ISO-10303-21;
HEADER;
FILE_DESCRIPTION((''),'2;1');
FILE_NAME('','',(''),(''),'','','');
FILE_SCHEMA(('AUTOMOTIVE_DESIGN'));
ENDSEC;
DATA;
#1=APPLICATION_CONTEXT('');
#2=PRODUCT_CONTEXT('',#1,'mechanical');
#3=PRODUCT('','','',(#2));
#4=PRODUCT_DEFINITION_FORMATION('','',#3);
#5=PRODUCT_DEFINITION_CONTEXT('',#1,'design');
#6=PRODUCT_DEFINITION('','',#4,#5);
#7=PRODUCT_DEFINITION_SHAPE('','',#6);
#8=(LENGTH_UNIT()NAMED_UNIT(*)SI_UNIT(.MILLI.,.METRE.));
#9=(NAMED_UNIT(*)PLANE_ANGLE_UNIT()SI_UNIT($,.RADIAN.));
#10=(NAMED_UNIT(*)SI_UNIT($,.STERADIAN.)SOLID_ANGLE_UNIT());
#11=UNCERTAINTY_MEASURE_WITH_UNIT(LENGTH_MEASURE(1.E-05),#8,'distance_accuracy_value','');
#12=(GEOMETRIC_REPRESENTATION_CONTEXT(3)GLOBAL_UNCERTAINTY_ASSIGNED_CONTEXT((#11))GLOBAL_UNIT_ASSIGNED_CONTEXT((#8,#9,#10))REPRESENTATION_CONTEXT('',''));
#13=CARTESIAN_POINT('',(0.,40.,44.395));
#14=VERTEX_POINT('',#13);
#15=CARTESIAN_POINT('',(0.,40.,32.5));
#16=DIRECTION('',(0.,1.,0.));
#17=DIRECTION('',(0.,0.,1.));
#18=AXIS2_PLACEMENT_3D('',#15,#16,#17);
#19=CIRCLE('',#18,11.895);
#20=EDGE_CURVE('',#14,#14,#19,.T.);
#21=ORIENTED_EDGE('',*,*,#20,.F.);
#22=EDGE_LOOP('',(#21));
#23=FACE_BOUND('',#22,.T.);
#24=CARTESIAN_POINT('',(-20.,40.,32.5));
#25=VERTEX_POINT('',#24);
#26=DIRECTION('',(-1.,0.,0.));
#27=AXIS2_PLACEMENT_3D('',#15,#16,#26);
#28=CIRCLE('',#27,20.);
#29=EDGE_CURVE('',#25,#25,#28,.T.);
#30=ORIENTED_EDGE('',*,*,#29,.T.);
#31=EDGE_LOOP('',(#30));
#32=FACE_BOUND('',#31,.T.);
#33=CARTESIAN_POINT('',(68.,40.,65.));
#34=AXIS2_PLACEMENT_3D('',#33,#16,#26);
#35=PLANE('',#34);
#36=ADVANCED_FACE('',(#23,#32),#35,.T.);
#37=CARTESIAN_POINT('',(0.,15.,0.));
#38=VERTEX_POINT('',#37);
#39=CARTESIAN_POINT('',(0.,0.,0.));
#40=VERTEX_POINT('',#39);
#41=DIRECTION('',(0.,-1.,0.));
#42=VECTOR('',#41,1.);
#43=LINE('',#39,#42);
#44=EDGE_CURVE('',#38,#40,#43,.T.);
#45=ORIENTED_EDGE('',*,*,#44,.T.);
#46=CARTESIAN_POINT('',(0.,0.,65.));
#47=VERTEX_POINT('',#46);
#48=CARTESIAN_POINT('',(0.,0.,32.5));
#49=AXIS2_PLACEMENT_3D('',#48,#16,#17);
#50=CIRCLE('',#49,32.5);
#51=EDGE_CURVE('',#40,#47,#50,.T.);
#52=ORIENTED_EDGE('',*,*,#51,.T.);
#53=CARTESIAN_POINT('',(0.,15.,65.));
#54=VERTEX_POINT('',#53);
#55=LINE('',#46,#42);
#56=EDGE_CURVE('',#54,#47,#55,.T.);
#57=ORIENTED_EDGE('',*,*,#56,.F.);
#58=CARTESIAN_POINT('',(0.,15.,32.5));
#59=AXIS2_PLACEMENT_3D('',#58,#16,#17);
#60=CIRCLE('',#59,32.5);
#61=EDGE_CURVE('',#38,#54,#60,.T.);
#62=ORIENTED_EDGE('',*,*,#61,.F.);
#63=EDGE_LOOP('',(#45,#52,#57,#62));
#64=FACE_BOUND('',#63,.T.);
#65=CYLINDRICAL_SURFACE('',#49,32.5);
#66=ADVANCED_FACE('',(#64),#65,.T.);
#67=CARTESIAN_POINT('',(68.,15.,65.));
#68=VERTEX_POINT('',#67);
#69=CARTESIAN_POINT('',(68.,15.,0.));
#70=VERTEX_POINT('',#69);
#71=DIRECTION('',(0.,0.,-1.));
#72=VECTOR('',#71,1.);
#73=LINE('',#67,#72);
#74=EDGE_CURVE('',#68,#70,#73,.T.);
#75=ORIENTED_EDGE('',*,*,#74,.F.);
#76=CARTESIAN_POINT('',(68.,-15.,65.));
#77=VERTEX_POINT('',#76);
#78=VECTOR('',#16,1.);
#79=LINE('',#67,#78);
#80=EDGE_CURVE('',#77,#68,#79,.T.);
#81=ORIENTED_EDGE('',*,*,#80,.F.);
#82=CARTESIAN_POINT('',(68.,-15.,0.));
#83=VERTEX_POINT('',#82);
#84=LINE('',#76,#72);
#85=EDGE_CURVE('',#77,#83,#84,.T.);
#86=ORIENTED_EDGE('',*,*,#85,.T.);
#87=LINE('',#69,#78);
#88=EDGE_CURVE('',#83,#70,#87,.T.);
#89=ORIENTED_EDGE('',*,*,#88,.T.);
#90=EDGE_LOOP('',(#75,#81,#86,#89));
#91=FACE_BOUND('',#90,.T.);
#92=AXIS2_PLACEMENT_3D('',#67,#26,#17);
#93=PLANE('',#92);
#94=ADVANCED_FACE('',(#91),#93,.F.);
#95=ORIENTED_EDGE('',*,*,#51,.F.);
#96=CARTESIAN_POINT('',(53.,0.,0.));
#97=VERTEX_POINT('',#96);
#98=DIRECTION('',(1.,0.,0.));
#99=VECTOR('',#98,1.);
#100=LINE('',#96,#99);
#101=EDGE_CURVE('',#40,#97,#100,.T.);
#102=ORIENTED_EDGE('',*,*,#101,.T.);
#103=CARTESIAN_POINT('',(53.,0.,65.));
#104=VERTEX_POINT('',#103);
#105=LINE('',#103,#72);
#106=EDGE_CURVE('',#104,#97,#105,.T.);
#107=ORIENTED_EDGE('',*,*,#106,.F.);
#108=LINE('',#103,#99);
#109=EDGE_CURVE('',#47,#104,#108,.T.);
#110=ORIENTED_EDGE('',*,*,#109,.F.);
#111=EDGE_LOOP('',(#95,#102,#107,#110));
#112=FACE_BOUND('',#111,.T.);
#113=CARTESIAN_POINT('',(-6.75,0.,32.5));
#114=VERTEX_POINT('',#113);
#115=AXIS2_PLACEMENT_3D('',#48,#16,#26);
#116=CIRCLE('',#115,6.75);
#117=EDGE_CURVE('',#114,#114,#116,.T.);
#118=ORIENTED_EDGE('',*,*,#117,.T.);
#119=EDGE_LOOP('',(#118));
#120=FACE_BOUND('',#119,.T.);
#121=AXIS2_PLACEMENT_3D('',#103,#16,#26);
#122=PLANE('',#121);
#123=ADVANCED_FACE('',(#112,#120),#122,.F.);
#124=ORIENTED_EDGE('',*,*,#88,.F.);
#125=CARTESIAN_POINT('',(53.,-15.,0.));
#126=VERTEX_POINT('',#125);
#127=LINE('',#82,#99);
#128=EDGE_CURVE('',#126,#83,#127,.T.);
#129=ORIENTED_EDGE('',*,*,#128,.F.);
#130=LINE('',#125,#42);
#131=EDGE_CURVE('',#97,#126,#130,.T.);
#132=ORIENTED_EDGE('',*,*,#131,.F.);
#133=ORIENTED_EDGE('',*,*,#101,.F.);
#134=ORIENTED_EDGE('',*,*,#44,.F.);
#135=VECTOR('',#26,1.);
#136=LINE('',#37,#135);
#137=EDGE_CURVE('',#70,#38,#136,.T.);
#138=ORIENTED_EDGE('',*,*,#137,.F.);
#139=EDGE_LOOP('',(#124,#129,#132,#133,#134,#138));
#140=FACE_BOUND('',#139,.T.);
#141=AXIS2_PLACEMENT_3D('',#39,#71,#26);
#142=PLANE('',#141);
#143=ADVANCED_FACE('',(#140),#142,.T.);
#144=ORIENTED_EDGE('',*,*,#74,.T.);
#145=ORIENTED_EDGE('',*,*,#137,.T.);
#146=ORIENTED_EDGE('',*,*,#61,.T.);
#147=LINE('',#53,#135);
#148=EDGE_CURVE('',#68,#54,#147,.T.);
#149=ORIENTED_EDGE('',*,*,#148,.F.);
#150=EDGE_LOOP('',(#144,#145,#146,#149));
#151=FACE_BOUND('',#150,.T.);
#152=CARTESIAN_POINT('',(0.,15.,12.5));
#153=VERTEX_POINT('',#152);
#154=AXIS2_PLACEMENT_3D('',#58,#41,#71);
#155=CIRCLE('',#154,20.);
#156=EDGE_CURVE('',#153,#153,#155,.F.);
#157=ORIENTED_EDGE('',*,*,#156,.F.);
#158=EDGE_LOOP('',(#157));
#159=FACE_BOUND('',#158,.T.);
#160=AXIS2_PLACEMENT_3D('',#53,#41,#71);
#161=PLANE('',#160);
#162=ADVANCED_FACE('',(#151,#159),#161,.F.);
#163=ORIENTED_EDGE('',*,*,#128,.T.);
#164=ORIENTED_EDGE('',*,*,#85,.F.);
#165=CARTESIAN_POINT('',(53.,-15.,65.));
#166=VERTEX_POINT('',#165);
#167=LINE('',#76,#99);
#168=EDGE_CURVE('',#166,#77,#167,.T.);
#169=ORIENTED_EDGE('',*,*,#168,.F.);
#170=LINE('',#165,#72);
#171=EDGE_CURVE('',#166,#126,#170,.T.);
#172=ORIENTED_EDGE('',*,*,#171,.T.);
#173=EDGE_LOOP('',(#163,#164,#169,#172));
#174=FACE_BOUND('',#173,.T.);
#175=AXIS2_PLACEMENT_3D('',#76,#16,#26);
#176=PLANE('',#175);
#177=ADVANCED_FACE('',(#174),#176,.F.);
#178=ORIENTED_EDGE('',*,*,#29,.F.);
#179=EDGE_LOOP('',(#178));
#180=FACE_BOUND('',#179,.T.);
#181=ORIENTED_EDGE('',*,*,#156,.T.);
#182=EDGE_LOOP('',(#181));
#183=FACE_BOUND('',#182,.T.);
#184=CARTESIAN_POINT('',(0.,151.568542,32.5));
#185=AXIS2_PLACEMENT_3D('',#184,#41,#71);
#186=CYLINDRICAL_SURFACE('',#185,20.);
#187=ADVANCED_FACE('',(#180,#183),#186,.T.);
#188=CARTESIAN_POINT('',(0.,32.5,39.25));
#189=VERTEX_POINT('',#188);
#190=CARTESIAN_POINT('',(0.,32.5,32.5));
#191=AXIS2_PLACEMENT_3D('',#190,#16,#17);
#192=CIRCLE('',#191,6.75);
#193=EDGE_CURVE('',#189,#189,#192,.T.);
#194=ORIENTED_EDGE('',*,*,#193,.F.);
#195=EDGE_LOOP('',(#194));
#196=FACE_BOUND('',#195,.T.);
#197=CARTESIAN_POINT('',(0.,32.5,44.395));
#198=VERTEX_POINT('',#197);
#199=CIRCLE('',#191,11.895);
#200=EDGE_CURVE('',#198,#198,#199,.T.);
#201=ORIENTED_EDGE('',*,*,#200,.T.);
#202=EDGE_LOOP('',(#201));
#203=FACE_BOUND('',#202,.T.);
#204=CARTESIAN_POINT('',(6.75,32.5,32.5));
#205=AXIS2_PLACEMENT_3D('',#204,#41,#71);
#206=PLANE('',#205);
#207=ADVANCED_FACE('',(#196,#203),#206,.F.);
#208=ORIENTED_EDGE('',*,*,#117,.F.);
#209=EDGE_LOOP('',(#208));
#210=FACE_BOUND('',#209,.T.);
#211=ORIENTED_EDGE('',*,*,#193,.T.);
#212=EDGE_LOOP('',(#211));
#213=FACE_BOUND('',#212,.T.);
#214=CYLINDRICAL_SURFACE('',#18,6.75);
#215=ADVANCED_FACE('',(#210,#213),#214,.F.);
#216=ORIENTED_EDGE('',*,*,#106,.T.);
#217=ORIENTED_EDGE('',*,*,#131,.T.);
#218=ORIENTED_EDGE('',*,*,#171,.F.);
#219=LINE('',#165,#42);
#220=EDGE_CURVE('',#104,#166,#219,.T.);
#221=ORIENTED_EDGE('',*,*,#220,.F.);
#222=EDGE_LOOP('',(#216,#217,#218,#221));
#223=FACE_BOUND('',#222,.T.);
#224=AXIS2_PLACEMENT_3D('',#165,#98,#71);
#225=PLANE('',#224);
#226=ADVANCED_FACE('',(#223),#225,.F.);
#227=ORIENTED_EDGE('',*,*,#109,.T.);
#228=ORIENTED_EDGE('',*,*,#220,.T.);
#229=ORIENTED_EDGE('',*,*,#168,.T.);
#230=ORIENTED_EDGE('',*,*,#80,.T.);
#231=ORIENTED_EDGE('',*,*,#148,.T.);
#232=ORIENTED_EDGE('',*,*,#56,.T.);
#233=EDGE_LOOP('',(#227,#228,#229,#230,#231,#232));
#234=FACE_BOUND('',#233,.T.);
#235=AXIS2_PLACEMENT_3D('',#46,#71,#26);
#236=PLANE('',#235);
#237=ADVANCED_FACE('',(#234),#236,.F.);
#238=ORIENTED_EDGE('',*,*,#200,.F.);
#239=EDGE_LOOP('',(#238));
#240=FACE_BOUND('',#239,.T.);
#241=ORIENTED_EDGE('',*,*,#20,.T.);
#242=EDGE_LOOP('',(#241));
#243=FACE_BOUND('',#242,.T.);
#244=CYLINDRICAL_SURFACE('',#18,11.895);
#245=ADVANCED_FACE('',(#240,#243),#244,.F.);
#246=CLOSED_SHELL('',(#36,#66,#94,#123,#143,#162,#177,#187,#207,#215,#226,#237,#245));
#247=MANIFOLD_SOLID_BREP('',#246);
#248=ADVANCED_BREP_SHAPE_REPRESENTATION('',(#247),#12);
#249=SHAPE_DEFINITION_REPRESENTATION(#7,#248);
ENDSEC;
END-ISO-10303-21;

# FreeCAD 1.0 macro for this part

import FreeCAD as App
import Part
import Sketcher
from FreeCAD import Vector
Q = App.Units.Quantity


def add_polygon(sketch, points):
    """Adds a closed chain of lines whose ends are joined by coincident constraints."""
    first, n = sketch.GeometryCount, len(points)
    for a, b in zip(points, points[1:] + points[:1]):
        sketch.addGeometry(Part.LineSegment(App.Vector(*a, 0), App.Vector(*b, 0)), False)
    for i in range(n):
        sketch.addConstraint(Sketcher.Constraint("Coincident", first + i, 2, first + (i + 1) % n, 1))

doc = App.newDocument("Part")
body = doc.addObject("PartDesign::Body", "Body")

# Sketch on XY plane
sketch1 = doc.addObject("Sketcher::SketchObject", "Sketch")
body.addObject(sketch1)
sketch1.AttachmentSupport = (doc.XY_Plane, [""])
sketch1.MapMode = "FlatFace"
add_polygon(sketch1, [(0, 15), (0, 0), (53, 0), (53, -15), (68, -15), (68, 15)])  # lines 0-5
sketch1.addConstraint(Sketcher.Constraint("Vertical", 0))
sketch1.addConstraint(Sketcher.Constraint("Horizontal", 1))
sketch1.addConstraint(Sketcher.Constraint("Vertical", 2))
sketch1.addConstraint(Sketcher.Constraint("Horizontal", 3))
sketch1.addConstraint(Sketcher.Constraint("Vertical", 4))
sketch1.addConstraint(Sketcher.Constraint("Horizontal", 5))
sketch1.addConstraint(Sketcher.Constraint("Coincident", 0, 2, -1, 1))
sketch1.addConstraint(Sketcher.Constraint("Equal", 3, 0))
sketch1.addConstraint(Sketcher.Constraint("Equal", 0, 2))
sketch1.addConstraint(Sketcher.Constraint("DistanceX", 1, 1, 1, 2, Q("53 mm")))
sketch1.addConstraint(Sketcher.Constraint("DistanceX", 3, 1, 3, 2, Q("15 mm")))
pad1 = doc.addObject("PartDesign::Pad", "Pad")
body.addObject(pad1)
pad1.Profile = sketch1
pad1.Length = 65

# Sketch on XZ plane
sketch2 = doc.addObject("Sketcher::SketchObject", "Sketch001")
body.addObject(sketch2)
sketch2.AttachmentSupport = (doc.XZ_Plane, [""])
sketch2.MapMode = "FlatFace"
sketch2.addGeometry(Part.Circle(Vector(0, 32, 0), Vector(0, 0, 1), 32), False)
sketch2.addConstraint(Sketcher.Constraint("PointOnObject", 0, 3, -2))
sketch2.addConstraint(Sketcher.Constraint("Diameter", 0, Q("65 mm")))
sketch2.addConstraint(Sketcher.Constraint("DistanceY", -1, 1, 0, 3, Q("32.5 mm")))
pad2 = doc.addObject("PartDesign::Pad", "Pad001")
body.addObject(pad2)
pad2.Profile = sketch2
pad2.Length = 15
pad2.Reversed = True

# Sketch on XZ plane
sketch3 = doc.addObject("Sketcher::SketchObject", "Sketch002")
body.addObject(sketch3)
sketch3.AttachmentSupport = (doc.XZ_Plane, [""])
sketch3.MapMode = "FlatFace"
sketch3.AttachmentOffset = App.Placement(Vector(0, 0, -15), App.Rotation())
sketch3.addGeometry(Part.Circle(Vector(0, 32, 0), Vector(0, 0, 1), 20), False)
sketch3.addConstraint(Sketcher.Constraint("PointOnObject", 0, 3, -2))
sketch3.addConstraint(Sketcher.Constraint("Diameter", 0, Q("40 mm")))
sketch3.addConstraint(Sketcher.Constraint("DistanceY", -1, 1, 0, 3, Q("32.5 mm")))
pad3 = doc.addObject("PartDesign::Pad", "Pad002")
body.addObject(pad3)
pad3.Profile = sketch3
pad3.Length = 25
pad3.Reversed = True

# Sketch on XZ plane
sketch4 = doc.addObject("Sketcher::SketchObject", "Sketch003")
body.addObject(sketch4)
sketch4.AttachmentSupport = (doc.XZ_Plane, [""])
sketch4.MapMode = "FlatFace"
sketch4.AttachmentOffset = App.Placement(Vector(0, 0, -40), App.Rotation())
sketch4.addGeometry(Part.Circle(Vector(0, 32, 0), Vector(0, 0, 1), 7), False)
sketch4.addConstraint(Sketcher.Constraint("PointOnObject", 0, 3, -2))
sketch4.addConstraint(Sketcher.Constraint("Diameter", 0, Q("13.5 mm")))
sketch4.addConstraint(Sketcher.Constraint("DistanceY", -1, 1, 0, 3, Q("32.5 mm")))
doc.recompute()
hole = doc.addObject("PartDesign::Hole", "Hole")
body.addObject(hole)
hole.Profile = sketch4
hole.ThreadType = "None"
hole.Diameter = 13.5
hole.DepthType = "ThroughAll"
hole.HoleCutType = "Counterbore"
hole.HoleCutDiameter = 23.79
hole.HoleCutDepth = 7.5
hole.Reversed = True

doc.recompute()
